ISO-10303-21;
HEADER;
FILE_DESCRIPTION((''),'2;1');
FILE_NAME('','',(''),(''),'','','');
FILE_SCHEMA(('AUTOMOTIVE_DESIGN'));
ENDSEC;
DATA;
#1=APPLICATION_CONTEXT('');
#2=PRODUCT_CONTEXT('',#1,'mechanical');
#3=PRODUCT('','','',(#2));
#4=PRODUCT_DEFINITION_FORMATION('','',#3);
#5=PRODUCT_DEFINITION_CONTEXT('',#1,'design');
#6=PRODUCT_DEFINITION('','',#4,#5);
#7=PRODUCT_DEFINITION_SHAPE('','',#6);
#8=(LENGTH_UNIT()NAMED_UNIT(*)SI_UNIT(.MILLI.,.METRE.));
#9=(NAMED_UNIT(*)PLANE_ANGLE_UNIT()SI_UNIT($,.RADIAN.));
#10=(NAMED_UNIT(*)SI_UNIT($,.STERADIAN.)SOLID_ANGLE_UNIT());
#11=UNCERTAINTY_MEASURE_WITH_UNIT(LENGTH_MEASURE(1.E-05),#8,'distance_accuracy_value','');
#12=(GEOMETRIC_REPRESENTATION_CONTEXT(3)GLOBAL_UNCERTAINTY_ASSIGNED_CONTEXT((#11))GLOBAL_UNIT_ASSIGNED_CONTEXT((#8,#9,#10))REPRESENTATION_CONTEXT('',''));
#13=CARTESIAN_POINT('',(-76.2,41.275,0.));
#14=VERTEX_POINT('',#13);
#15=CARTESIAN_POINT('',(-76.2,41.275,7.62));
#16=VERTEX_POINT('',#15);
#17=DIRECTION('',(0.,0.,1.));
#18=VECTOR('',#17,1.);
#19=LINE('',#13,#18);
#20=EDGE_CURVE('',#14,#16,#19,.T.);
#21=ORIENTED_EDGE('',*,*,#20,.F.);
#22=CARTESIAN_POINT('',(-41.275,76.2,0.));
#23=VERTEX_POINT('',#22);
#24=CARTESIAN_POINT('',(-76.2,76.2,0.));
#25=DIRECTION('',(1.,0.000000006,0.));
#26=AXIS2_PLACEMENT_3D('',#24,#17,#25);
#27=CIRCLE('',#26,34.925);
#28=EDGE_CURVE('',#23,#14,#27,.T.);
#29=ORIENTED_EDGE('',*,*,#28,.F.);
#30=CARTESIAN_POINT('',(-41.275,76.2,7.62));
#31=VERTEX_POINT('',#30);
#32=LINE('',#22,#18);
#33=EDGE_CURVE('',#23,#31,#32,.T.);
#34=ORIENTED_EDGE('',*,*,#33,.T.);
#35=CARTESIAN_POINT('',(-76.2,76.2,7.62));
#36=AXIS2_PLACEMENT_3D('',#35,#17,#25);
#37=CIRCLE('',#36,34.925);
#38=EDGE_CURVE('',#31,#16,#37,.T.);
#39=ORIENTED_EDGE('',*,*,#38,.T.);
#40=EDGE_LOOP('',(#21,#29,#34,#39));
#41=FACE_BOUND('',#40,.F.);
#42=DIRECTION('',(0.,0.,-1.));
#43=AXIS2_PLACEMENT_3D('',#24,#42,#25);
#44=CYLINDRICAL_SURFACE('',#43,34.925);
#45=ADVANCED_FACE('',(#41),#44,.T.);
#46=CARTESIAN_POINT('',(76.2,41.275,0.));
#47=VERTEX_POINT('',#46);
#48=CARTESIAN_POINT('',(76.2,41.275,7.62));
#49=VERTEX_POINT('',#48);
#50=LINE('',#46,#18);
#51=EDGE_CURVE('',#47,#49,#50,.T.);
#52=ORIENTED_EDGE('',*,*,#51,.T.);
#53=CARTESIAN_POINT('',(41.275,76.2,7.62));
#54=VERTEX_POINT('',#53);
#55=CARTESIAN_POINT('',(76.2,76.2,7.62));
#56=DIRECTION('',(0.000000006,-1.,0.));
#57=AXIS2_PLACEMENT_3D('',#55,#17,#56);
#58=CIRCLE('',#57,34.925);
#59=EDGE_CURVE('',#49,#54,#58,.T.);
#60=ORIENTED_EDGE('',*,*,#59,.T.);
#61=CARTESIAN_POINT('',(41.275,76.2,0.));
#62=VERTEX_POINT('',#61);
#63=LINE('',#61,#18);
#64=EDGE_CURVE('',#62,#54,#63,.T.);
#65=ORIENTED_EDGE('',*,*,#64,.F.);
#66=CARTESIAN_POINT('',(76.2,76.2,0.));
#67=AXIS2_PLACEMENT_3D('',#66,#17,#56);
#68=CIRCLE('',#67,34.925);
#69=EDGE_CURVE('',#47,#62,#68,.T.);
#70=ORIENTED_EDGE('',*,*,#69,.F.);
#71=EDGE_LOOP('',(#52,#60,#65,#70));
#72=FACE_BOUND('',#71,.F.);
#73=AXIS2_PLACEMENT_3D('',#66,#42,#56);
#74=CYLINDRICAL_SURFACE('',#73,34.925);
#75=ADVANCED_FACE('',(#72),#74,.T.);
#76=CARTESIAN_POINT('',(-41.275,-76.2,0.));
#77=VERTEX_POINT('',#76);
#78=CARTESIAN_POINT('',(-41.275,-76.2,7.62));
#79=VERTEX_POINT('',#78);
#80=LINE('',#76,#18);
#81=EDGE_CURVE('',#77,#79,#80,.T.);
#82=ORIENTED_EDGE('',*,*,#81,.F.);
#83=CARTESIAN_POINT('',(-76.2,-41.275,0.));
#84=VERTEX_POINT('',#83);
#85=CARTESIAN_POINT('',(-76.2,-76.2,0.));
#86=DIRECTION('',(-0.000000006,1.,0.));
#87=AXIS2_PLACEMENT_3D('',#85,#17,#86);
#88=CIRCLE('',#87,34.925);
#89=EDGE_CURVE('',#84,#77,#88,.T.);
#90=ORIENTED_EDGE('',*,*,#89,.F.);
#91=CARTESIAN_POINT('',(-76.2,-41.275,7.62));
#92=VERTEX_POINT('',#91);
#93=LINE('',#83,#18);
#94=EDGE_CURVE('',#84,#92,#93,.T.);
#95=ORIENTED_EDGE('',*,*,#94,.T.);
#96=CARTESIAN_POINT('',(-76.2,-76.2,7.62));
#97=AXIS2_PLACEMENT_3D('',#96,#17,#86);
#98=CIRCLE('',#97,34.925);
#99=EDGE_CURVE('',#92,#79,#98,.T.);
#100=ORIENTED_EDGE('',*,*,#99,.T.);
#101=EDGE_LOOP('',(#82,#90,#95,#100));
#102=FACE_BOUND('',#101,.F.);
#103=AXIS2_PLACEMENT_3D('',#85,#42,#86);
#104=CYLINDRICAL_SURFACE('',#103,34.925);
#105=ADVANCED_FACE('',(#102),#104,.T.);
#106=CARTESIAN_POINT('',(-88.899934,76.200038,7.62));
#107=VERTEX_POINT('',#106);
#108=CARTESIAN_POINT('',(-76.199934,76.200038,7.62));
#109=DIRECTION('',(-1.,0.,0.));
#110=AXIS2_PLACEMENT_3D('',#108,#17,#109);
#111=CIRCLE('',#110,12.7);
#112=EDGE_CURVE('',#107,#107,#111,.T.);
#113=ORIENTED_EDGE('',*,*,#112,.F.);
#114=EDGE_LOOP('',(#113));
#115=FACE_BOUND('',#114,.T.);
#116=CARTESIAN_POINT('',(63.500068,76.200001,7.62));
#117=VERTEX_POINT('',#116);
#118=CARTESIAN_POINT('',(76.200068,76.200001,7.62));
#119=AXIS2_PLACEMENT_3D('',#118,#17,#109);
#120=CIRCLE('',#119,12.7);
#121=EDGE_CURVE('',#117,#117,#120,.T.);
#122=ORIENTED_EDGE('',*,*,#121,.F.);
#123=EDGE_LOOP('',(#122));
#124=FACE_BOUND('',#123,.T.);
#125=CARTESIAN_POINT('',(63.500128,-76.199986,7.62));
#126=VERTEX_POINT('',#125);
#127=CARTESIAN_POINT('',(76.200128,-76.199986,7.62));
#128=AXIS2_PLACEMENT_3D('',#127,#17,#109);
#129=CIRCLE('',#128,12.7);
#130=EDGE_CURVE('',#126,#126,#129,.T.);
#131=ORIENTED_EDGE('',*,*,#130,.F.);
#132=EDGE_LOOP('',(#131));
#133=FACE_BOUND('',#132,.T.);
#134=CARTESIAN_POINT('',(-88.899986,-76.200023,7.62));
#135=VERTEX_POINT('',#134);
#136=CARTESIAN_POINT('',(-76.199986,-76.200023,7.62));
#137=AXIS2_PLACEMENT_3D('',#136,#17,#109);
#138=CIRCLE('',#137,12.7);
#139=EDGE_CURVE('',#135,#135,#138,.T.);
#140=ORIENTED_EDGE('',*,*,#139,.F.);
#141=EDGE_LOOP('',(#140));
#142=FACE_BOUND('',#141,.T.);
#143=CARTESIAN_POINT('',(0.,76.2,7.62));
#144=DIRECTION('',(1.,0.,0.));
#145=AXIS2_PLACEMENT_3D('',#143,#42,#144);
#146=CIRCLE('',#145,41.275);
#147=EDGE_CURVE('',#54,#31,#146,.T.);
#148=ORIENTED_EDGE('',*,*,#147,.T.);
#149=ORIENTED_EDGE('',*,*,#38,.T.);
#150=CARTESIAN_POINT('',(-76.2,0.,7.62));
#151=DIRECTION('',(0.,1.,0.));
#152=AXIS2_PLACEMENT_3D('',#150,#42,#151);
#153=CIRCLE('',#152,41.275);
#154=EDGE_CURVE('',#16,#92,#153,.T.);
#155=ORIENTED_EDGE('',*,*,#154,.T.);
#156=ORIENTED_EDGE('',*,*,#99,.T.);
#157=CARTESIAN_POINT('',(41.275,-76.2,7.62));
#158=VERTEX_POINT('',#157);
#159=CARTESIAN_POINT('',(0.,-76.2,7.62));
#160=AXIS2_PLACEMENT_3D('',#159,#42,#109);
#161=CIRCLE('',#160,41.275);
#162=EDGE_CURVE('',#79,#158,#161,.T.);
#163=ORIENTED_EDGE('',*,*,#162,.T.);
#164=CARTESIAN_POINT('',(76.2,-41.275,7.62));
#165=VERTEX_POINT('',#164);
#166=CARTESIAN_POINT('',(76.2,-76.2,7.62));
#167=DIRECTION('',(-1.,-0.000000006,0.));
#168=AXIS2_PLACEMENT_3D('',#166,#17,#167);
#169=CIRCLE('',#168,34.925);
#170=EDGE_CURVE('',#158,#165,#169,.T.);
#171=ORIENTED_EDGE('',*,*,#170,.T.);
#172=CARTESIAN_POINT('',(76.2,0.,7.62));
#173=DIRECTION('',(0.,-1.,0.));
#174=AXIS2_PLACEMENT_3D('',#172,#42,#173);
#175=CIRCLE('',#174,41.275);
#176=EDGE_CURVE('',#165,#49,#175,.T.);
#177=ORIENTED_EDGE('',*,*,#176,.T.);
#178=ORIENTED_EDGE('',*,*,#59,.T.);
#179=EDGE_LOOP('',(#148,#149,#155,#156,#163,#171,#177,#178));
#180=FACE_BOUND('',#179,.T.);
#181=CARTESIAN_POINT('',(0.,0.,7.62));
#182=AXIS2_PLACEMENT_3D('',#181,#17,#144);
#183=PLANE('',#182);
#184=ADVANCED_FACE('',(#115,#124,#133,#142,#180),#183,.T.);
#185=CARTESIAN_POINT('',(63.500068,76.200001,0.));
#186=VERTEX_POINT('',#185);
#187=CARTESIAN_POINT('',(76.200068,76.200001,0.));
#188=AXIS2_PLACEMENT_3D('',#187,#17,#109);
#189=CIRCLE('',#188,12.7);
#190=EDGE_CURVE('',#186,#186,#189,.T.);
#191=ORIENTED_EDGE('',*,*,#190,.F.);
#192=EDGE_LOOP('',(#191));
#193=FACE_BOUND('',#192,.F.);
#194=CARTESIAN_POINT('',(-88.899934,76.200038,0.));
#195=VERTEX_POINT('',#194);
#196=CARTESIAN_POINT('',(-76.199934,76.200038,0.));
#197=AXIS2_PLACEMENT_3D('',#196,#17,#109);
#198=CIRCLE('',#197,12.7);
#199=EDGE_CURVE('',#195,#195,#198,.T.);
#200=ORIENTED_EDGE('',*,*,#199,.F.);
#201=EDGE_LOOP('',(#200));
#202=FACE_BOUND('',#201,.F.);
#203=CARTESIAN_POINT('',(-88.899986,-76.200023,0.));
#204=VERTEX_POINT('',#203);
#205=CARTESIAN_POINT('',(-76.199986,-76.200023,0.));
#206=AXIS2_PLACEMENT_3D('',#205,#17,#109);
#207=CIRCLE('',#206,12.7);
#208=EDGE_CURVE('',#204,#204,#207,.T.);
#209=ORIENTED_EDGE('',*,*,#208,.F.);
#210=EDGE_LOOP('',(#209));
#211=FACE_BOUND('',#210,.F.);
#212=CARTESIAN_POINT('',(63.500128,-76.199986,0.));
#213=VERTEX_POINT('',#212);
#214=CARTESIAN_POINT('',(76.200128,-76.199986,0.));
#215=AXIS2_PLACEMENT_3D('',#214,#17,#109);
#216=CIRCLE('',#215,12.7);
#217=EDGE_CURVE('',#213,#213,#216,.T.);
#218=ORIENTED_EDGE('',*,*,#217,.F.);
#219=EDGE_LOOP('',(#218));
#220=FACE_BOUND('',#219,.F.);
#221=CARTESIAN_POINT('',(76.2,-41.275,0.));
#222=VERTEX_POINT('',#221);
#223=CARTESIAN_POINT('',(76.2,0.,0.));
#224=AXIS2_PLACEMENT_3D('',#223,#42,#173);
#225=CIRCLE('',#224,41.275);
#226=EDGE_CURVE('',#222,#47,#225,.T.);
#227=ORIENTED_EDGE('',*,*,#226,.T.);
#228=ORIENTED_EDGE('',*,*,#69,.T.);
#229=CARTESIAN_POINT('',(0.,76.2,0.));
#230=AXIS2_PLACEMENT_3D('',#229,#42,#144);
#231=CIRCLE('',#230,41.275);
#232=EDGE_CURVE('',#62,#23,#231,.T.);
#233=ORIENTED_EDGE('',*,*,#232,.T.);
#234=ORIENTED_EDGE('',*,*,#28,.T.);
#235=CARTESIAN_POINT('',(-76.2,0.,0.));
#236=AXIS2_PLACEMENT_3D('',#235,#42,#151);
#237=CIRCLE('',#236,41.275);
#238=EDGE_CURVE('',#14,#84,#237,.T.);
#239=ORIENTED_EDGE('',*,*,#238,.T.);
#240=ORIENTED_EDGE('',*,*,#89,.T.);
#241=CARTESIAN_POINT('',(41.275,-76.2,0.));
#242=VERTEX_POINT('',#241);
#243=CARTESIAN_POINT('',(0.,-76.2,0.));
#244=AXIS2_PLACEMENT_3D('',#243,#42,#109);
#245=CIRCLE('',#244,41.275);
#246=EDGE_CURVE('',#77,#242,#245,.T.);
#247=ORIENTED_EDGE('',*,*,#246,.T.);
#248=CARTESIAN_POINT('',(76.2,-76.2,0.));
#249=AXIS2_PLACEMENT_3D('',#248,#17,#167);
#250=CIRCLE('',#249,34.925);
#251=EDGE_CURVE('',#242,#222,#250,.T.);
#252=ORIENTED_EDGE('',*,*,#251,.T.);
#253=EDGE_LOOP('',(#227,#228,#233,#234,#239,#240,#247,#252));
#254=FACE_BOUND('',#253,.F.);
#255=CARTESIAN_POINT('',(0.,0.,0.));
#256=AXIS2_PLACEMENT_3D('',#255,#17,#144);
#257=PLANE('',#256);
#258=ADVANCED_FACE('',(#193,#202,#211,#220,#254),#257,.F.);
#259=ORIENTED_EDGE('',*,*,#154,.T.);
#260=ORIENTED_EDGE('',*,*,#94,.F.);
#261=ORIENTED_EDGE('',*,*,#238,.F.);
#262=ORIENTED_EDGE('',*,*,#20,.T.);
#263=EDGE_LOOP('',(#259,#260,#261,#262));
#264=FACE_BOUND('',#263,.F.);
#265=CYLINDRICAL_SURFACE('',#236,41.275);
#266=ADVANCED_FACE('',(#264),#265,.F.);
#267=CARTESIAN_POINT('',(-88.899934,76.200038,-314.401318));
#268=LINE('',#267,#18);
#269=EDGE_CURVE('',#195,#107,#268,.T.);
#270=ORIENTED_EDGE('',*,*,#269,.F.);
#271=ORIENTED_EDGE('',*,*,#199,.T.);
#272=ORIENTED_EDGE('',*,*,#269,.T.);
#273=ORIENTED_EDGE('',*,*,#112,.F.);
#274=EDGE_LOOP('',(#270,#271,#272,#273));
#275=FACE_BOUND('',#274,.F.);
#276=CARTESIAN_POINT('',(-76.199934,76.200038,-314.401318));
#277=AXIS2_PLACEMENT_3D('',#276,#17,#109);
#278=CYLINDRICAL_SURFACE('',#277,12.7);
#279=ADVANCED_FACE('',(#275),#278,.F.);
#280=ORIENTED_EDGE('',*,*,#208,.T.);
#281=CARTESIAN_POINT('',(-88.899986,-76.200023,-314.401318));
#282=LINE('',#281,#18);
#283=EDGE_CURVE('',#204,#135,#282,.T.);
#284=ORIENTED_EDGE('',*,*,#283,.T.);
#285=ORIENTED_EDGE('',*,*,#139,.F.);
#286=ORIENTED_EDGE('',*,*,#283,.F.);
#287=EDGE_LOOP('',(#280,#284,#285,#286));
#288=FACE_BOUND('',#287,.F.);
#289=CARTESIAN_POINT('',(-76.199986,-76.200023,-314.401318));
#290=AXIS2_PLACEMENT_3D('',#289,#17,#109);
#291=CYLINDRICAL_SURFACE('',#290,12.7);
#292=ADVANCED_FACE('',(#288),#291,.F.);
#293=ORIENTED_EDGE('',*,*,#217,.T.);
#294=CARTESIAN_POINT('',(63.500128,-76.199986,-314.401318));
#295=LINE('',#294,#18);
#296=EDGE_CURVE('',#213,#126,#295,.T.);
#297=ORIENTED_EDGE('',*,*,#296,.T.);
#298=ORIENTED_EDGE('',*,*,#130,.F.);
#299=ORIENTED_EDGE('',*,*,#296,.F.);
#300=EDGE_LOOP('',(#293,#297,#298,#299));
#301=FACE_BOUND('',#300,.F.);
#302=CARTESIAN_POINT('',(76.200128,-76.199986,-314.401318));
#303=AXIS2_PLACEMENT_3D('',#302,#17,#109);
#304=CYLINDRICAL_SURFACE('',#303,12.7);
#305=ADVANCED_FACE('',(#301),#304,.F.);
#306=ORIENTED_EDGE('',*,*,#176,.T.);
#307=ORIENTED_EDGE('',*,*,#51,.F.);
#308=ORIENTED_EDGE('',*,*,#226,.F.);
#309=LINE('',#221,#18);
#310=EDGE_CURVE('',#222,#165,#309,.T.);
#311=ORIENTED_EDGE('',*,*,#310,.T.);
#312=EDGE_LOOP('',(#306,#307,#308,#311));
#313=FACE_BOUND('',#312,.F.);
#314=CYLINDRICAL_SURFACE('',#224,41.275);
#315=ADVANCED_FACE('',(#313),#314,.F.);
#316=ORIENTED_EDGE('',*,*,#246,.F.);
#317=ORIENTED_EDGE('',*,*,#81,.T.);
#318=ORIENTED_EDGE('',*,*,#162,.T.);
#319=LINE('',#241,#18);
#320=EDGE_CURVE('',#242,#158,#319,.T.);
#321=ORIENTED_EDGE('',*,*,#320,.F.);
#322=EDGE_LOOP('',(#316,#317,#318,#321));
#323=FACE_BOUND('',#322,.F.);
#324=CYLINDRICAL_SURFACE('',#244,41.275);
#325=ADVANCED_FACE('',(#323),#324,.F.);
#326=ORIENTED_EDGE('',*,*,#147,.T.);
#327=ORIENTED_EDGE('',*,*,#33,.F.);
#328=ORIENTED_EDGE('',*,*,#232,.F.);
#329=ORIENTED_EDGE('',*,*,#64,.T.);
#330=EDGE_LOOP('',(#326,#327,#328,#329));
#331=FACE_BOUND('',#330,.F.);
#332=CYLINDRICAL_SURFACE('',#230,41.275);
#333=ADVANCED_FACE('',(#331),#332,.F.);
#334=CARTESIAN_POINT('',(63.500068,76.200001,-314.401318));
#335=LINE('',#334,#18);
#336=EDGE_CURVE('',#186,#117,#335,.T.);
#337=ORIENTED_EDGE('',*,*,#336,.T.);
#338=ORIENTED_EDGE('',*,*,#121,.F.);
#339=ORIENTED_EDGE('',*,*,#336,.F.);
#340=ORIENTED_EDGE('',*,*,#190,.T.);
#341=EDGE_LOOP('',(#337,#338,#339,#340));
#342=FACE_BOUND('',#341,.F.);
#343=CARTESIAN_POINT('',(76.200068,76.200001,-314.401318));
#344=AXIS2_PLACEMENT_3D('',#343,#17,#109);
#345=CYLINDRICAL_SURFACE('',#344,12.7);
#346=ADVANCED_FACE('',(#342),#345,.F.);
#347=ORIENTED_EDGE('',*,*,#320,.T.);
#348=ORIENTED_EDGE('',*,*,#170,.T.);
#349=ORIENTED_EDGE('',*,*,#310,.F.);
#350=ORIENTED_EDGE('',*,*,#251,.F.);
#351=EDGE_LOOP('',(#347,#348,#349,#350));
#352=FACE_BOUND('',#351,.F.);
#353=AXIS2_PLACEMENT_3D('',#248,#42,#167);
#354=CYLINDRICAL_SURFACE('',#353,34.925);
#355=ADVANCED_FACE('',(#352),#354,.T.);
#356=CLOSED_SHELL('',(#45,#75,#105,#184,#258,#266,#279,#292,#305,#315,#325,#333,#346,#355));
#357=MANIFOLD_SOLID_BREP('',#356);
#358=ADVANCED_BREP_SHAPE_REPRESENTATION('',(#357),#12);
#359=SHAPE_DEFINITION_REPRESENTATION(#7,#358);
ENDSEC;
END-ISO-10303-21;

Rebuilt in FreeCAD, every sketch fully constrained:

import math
import FreeCAD as App
import Part
import Sketcher
from FreeCAD import Vector
Q = App.Units.Quantity

doc = App.newDocument("Part")
params = doc.addObject("Spreadsheet::Sheet", "Params")
for row, (alias, value) in enumerate([
    ("sketch1_radius", "1.625 in"),
    ("pad1_length", "0.3 in"),
    ("sketch2_diameter", "1 in"),
    ("hole_diameter", "1 in"),
    ("sketch3_diameter", "1 in"),
    ("hole2_diameter", "1 in"),
], start=1):
    params.set(f"A{row}", alias)
    params.set(f"B{row}", "=" + value)
    params.setAlias(f"B{row}", alias)

body = doc.addObject("PartDesign::Body", "Body")

sketch1 = body.newObject("Sketcher::SketchObject", "Sketch")
sketch1.AttachmentSupport = (doc.getObject("XY_Plane"), [""])
sketch1.MapMode = "FlatFace"
sketch1.addGeometry(Part.ArcOfCircle(Part.Circle(Vector(0, 76, 0), Vector(0, 0, 1), 41), math.radians(180), math.radians(360)), False)
sketch1.addGeometry(Part.ArcOfCircle(Part.Circle(Vector(-76, 76, 0), Vector(0, 0, 1), 35), math.radians(0), math.radians(270)), False)
sketch1.addGeometry(Part.ArcOfCircle(Part.Circle(Vector(-76, 0, 0), Vector(0, 0, 1), 41), math.radians(-90), math.radians(90)), False)
sketch1.addGeometry(Part.ArcOfCircle(Part.Circle(Vector(-76, -76, 0), Vector(0, 0, 1), 35), math.radians(90), math.radians(360)), False)
sketch1.addGeometry(Part.ArcOfCircle(Part.Circle(Vector(0, -76, 0), Vector(0, 0, 1), 41), math.radians(0), math.radians(180)), False)
sketch1.addGeometry(Part.ArcOfCircle(Part.Circle(Vector(76, -76, 0), Vector(0, 0, 1), 35), math.radians(-180), math.radians(90)), False)
sketch1.addGeometry(Part.ArcOfCircle(Part.Circle(Vector(76, 0, 0), Vector(0, 0, 1), 41), math.radians(90), math.radians(270)), False)
sketch1.addGeometry(Part.ArcOfCircle(Part.Circle(Vector(76, 76, 0), Vector(0, 0, 1), 35), math.radians(-90), math.radians(180)), False)
sketch1.addConstraint(Sketcher.Constraint("Tangent", 0, 1, 1, 1))
sketch1.addConstraint(Sketcher.Constraint("Tangent", 1, 2, 2, 2))
sketch1.addConstraint(Sketcher.Constraint("Tangent", 2, 1, 3, 1))
sketch1.addConstraint(Sketcher.Constraint("Tangent", 3, 2, 4, 2))
sketch1.addConstraint(Sketcher.Constraint("Tangent", 4, 1, 5, 1))
sketch1.addConstraint(Sketcher.Constraint("Tangent", 5, 2, 6, 2))
sketch1.addConstraint(Sketcher.Constraint("Tangent", 6, 1, 7, 1))
sketch1.addConstraint(Sketcher.Constraint("Tangent", 7, 2, 0, 2))
sketch1.addConstraint(Sketcher.Constraint("Equal", 0, 2))
sketch1.addConstraint(Sketcher.Constraint("Equal", 1, 3))
sketch1.addConstraint(Sketcher.Constraint("Equal", 2, 4))
sketch1.addConstraint(Sketcher.Constraint("Equal", 3, 5))
sketch1.addConstraint(Sketcher.Constraint("Equal", 4, 6))
sketch1.addConstraint(Sketcher.Constraint("Equal", 5, 7))
sketch1.addConstraint(Sketcher.Constraint("Symmetric", 0, 3, 4, 3, -1, 1))
sketch1.addConstraint(Sketcher.Constraint("Symmetric", 2, 3, 6, 3, -1, 1))
sketch1.addConstraint(Sketcher.Constraint("Symmetric", 3, 3, 5, 3, -2))
sketch1.addConstraint(Sketcher.Constraint("Horizontal", 0, 3, 1, 3))
sketch1.addConstraint(Sketcher.Constraint("Vertical", 1, 3, 2, 3))
sketch1.addConstraint(Sketcher.Constraint("DistanceY", -1, 1, 0, 3, Q("3 in")))
sketch1.addConstraint(Sketcher.Constraint("Radius", 0, Q("1.625 in")))
sketch1.setExpression("Constraints[20]", "Params.sketch1_radius")
pad1 = body.newObject("PartDesign::Pad", "Pad")
pad1.Profile = sketch1
pad1.setExpression("Length", "Params.pad1_length")

sketch2 = body.newObject("Sketcher::SketchObject", "Sketch001")
sketch2.AttachmentSupport = (doc.getObject("XY_Plane"), [""])
sketch2.MapMode = "FlatFace"
sketch2.addGeometry(Part.Circle(Vector(-76, -76, 0), Vector(0, 0, 1), 13), False)
sketch2.addConstraint(Sketcher.Constraint("Diameter", 0, Q("1 in")))
sketch2.addConstraint(Sketcher.Constraint("DistanceX", 0, 3, -1, 1, 76.199986))
sketch2.addConstraint(Sketcher.Constraint("DistanceY", 0, 3, -1, 1, 76.200023))
sketch2.setExpression("Constraints[0]", "Params.sketch2_diameter")
doc.recompute()
hole = body.newObject("PartDesign::Hole", "Hole")
hole.Profile = sketch2
hole.ThreadType = "None"
hole.setExpression("Diameter", "Params.hole_diameter")
hole.DepthType = "ThroughAll"
hole.Reversed = True

sketch3 = body.newObject("Sketcher::SketchObject", "Sketch002")
sketch3.AttachmentSupport = (doc.getObject("XY_Plane"), [""])
sketch3.MapMode = "FlatFace"
sketch3.addGeometry(Part.Circle(Vector(-76, 76, 0), Vector(0, 0, 1), 13), False)
sketch3.addGeometry(Part.Circle(Vector(76, 76, 0), Vector(0, 0, 1), 13), False)
sketch3.addGeometry(Part.Circle(Vector(76, -76, 0), Vector(0, 0, 1), 13), False)
sketch3.addConstraint(Sketcher.Constraint("Equal", 0, 1))
sketch3.addConstraint(Sketcher.Constraint("Equal", 1, 2))
sketch3.addConstraint(Sketcher.Constraint("Diameter", 0, Q("1 in")))
sketch3.addConstraint(Sketcher.Constraint("DistanceY", -1, 1, 1, 3, Q("3 in")))
sketch3.addConstraint(Sketcher.Constraint("DistanceX", 0, 3, 1, 3, Q("6.0000001 in")))
sketch3.addConstraint(Sketcher.Constraint("DistanceY", -1, 1, 0, 3, 76.200038))
sketch3.addConstraint(Sketcher.Constraint("DistanceX", -1, 1, 1, 3, 76.200068))
sketch3.addConstraint(Sketcher.Constraint("DistanceX", -1, 1, 2, 3, 76.200128))
sketch3.addConstraint(Sketcher.Constraint("DistanceY", 2, 3, -1, 1, 76.199986))
sketch3.setExpression("Constraints[2]", "Params.sketch3_diameter")
doc.recompute()
hole2 = body.newObject("PartDesign::Hole", "Hole001")
hole2.Profile = sketch3
hole2.ThreadType = "None"
hole2.setExpression("Diameter", "Params.hole2_diameter")
hole2.DepthType = "ThroughAll"
hole2.Reversed = True

doc.recompute()
